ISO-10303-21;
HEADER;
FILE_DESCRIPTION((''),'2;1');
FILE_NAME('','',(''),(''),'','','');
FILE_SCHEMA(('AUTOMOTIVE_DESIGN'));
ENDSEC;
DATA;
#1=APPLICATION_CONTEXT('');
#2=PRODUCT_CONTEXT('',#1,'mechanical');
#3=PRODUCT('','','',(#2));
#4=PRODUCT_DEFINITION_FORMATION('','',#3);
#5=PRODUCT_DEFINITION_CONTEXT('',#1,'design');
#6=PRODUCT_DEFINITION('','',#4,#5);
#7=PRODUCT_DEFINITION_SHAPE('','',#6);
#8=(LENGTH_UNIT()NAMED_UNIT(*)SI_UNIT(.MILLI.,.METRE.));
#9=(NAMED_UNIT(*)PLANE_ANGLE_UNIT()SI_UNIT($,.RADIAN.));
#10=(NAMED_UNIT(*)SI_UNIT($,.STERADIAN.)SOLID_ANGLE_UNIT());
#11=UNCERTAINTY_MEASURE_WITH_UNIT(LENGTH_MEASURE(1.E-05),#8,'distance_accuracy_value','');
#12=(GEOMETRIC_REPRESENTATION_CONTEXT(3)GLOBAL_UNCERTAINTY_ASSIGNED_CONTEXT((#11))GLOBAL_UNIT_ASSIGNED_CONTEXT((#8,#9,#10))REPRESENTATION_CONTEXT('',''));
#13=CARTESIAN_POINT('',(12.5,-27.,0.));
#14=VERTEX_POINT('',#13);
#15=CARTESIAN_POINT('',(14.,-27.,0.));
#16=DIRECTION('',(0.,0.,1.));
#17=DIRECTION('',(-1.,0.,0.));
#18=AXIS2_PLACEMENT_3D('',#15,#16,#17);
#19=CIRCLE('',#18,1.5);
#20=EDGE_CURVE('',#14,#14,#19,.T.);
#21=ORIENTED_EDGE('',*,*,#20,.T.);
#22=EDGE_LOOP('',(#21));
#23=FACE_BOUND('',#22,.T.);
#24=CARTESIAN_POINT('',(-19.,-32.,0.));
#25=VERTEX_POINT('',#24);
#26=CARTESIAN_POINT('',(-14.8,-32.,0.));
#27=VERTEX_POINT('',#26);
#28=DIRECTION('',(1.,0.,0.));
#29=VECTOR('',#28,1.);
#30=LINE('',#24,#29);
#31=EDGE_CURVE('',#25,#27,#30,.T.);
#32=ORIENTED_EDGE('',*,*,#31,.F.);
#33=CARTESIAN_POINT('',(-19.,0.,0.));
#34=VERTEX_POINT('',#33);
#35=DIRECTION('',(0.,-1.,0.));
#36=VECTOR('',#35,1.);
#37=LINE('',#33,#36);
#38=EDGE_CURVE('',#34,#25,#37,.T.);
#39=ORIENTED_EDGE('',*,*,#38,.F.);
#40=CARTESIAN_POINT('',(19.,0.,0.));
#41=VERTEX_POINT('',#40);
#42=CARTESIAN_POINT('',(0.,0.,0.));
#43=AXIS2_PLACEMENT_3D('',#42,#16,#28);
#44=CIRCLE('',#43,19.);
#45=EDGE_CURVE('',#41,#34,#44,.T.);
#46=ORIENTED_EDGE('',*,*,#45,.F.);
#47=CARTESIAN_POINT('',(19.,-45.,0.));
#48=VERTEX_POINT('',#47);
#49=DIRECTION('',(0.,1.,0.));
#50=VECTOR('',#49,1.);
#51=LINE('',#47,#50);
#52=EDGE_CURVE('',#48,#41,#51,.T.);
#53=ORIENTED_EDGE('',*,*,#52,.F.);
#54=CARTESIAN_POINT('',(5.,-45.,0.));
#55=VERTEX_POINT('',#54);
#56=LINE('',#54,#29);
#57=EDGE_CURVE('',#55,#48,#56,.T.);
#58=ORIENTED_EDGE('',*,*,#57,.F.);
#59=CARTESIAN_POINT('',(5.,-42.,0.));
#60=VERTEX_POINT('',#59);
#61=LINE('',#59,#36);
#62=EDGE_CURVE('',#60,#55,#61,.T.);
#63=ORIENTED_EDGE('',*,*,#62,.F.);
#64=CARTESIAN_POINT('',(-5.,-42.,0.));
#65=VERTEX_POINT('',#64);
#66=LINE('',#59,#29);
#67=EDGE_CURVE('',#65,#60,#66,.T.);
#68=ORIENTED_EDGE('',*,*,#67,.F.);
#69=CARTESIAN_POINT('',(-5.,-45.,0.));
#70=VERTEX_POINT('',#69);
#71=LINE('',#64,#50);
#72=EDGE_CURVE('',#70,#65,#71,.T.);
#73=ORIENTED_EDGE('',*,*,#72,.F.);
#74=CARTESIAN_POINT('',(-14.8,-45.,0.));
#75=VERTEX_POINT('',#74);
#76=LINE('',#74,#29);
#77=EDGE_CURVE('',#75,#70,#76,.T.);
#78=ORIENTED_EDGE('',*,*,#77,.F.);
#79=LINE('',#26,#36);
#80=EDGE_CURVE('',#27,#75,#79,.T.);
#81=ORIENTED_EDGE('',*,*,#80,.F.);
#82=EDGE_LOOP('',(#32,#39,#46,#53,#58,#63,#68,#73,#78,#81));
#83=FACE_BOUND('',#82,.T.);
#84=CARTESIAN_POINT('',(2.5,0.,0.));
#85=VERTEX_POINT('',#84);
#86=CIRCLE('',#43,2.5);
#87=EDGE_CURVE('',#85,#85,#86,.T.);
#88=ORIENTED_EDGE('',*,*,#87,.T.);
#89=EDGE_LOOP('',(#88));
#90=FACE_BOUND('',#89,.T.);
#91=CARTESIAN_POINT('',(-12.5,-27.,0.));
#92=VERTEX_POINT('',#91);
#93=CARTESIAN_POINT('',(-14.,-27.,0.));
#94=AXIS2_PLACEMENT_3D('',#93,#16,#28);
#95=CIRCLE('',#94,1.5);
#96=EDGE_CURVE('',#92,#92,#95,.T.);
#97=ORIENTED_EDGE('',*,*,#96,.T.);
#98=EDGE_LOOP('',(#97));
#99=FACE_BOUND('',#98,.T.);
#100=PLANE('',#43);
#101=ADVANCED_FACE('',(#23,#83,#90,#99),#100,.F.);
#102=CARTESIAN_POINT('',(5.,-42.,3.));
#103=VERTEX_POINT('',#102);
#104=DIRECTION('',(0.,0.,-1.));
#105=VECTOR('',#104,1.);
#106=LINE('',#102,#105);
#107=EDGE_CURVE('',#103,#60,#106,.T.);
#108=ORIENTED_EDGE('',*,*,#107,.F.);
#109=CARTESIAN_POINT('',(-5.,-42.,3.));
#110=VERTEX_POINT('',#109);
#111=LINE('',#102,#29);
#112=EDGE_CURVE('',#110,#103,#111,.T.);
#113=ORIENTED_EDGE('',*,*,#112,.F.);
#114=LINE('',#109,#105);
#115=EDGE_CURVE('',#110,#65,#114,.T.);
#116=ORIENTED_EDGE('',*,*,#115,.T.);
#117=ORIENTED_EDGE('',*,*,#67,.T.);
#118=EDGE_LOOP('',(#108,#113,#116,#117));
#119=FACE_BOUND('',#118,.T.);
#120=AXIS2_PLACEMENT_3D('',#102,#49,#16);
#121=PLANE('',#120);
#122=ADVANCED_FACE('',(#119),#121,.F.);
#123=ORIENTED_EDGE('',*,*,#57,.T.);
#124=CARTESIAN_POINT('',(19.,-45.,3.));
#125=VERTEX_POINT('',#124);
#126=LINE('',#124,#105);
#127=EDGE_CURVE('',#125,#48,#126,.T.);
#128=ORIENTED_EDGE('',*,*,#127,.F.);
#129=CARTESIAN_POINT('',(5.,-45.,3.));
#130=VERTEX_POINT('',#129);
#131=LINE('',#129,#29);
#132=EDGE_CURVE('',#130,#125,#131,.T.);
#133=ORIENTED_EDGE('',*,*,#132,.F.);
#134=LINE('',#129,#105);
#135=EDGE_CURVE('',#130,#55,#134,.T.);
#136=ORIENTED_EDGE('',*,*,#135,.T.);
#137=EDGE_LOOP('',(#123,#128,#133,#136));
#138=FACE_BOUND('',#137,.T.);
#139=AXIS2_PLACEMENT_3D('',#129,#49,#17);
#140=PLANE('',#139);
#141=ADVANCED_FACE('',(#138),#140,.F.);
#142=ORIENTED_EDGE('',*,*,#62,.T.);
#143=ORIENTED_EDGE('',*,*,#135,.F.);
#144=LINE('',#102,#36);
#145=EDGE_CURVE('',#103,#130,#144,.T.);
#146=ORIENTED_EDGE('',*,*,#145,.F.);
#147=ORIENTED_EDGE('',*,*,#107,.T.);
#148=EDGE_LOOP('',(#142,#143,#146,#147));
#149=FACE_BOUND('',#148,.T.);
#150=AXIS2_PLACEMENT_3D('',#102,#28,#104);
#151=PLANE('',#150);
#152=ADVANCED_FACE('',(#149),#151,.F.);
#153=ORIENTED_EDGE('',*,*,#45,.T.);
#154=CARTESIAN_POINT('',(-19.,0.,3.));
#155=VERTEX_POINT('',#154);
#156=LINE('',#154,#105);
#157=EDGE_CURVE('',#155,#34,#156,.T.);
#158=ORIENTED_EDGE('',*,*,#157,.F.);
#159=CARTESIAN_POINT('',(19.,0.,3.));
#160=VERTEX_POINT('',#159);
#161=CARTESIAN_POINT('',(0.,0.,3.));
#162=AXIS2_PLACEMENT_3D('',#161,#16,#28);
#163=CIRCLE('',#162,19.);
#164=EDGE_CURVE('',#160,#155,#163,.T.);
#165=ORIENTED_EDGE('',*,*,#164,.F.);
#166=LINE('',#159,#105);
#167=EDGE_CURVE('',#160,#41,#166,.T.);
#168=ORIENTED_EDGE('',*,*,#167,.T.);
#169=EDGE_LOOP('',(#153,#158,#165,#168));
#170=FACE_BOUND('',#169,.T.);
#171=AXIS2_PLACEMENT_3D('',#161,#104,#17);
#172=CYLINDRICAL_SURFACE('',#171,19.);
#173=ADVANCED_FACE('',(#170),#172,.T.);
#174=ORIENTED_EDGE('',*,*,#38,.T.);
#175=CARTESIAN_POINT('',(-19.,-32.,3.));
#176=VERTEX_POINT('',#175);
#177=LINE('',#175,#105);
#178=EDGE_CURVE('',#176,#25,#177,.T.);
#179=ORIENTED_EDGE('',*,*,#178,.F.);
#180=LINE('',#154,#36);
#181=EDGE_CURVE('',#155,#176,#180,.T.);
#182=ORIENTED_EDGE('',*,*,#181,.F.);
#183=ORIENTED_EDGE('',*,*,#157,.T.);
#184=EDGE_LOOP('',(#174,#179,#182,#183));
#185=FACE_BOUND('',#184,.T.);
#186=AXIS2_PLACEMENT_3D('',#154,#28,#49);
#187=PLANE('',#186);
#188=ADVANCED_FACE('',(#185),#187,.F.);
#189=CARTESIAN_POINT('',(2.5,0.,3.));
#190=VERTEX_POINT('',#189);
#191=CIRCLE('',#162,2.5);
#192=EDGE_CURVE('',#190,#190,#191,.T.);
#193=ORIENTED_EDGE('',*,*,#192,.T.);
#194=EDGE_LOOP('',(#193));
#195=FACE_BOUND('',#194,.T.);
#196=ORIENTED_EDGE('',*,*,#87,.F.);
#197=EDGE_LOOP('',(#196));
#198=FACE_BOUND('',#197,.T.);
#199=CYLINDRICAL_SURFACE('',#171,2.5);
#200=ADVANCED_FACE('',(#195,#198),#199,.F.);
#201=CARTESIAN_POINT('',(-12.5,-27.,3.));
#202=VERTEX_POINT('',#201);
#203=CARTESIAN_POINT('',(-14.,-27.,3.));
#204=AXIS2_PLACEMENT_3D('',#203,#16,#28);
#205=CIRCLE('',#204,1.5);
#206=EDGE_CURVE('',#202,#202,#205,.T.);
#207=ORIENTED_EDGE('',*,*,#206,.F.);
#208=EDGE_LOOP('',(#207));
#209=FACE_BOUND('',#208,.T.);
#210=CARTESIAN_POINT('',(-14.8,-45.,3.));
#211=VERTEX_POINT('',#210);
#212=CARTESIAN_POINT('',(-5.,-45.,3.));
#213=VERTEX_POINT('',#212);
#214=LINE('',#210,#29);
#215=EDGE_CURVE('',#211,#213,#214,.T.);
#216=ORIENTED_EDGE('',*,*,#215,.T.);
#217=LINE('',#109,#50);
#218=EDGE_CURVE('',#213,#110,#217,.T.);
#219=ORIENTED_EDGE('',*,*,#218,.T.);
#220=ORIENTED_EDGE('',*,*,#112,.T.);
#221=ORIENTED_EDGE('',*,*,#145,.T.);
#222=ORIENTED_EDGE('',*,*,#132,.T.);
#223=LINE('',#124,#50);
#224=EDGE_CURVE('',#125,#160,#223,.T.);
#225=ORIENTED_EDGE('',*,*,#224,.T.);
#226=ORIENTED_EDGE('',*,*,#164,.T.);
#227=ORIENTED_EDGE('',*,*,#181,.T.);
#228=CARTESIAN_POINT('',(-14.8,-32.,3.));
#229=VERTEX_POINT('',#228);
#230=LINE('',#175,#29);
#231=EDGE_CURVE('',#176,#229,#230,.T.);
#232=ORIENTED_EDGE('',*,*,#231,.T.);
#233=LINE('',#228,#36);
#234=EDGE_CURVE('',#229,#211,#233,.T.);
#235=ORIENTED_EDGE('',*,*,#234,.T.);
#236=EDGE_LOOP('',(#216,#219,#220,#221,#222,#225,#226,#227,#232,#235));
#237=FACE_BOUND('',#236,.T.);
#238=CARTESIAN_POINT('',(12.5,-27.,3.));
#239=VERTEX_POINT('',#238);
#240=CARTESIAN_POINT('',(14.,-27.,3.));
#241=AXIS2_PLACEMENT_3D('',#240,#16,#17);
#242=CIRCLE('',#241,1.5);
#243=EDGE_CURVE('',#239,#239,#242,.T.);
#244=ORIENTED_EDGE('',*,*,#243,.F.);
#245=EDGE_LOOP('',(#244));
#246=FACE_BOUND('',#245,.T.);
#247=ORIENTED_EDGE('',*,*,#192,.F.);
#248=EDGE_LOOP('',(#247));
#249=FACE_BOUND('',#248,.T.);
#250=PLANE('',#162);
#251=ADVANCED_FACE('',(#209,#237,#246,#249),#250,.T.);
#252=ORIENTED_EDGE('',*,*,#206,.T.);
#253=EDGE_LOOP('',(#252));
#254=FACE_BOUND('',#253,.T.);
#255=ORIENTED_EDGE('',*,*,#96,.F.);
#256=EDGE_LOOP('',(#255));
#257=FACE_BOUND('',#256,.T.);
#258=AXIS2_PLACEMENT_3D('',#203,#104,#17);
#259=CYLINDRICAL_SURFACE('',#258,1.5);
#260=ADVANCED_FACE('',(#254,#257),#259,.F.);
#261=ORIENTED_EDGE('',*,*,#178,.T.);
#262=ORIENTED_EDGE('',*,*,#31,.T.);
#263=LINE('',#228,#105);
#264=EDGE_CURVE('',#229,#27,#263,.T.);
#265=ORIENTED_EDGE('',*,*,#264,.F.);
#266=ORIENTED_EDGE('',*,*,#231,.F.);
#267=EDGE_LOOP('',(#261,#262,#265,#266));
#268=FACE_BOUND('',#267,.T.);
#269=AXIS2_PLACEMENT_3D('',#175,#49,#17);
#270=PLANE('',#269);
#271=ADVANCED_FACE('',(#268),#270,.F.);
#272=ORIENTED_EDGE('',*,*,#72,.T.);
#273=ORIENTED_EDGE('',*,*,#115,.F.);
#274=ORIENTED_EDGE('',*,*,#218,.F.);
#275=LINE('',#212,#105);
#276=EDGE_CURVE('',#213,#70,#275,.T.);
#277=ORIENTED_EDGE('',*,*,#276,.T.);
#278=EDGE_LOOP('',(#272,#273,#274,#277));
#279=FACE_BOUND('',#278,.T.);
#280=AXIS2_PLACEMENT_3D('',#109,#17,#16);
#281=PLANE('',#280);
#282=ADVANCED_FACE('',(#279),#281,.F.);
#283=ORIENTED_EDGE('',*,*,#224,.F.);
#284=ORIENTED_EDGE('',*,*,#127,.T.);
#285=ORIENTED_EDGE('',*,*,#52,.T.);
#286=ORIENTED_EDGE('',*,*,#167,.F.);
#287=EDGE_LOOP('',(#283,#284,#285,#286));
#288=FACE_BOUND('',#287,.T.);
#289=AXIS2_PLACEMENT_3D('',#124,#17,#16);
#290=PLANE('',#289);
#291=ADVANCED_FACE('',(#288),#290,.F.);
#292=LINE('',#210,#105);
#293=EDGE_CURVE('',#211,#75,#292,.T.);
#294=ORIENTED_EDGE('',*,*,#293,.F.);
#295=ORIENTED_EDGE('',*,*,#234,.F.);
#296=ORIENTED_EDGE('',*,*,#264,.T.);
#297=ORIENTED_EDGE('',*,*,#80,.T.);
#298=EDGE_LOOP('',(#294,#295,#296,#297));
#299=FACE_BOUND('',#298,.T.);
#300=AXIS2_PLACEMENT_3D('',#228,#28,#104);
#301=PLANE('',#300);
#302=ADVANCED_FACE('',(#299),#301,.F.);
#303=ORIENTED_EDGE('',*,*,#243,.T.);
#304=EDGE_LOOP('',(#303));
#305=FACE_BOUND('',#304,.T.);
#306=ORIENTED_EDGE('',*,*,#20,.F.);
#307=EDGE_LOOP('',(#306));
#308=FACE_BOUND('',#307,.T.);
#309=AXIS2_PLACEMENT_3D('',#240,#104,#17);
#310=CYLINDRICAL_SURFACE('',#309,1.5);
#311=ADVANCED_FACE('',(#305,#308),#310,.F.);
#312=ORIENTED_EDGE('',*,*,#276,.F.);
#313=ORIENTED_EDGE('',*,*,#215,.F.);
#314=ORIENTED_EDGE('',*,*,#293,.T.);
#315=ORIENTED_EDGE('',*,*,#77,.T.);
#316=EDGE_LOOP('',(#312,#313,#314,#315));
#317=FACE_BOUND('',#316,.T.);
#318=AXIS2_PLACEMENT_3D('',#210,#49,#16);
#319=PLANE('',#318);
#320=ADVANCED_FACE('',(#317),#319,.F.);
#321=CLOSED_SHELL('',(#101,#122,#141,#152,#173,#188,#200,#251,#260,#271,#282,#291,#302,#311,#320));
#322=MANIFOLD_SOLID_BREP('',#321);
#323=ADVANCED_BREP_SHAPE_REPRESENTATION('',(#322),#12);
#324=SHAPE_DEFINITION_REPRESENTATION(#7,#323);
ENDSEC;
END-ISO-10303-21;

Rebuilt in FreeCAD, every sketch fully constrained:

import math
import FreeCAD as App
import Part
import Sketcher
Q = App.Units.Quantity

doc = App.newDocument("Part")
body = doc.addObject("PartDesign::Body", "Body")

# Sketch on XY plane
sketch1 = body.newObject("Sketcher::SketchObject", "Sketch")
sketch1.AttachmentSupport = (doc.getObject("XY_Plane"), [""])
sketch1.MapMode = "FlatFace"
sketch1.addGeometry(Part.LineSegment(App.Vector(-19, 0, 0), App.Vector(-19, -32, 0)), False)
sketch1.addGeometry(Part.LineSegment(App.Vector(-19, -32, 0), App.Vector(-14.8, -32, 0)), False)
sketch1.addGeometry(Part.LineSegment(App.Vector(-14.8, -32, 0), App.Vector(-14.8, -45, 0)), False)
sketch1.addGeometry(Part.LineSegment(App.Vector(-14.8, -45, 0), App.Vector(-5, -45, 0)), False)
sketch1.addGeometry(Part.LineSegment(App.Vector(-5, -45, 0), App.Vector(-5, -42, 0)), False)
sketch1.addGeometry(Part.LineSegment(App.Vector(-5, -42, 0), App.Vector(5, -42, 0)), False)
sketch1.addGeometry(Part.LineSegment(App.Vector(5, -42, 0), App.Vector(5, -45, 0)), False)
sketch1.addGeometry(Part.LineSegment(App.Vector(5, -45, 0), App.Vector(19, -45, 0)), False)
sketch1.addGeometry(Part.LineSegment(App.Vector(19, -45, 0), App.Vector(19, 0, 0)), False)
sketch1.addGeometry(Part.ArcOfCircle(Part.Circle(App.Vector(0, 0, 0), App.Vector(0, 0, 1), 19), math.radians(0), math.radians(180)), False)
sketch1.addGeometry(Part.Circle(App.Vector(-14, -27, 0), App.Vector(0, 0, 1), 1.5), False)
sketch1.addGeometry(Part.Circle(App.Vector(14, -27, 0), App.Vector(0, 0, 1), 1.5), False)
sketch1.addGeometry(Part.Circle(App.Vector(0, 0, 0), App.Vector(0, 0, 1), 2.5), False)
sketch1.addConstraint(Sketcher.Constraint("Coincident", 0, 2, 1, 1))
sketch1.addConstraint(Sketcher.Constraint("Coincident", 1, 2, 2, 1))
sketch1.addConstraint(Sketcher.Constraint("Coincident", 2, 2, 3, 1))
sketch1.addConstraint(Sketcher.Constraint("Coincident", 3, 2, 4, 1))
sketch1.addConstraint(Sketcher.Constraint("Coincident", 4, 2, 5, 1))
sketch1.addConstraint(Sketcher.Constraint("Coincident", 5, 2, 6, 1))
sketch1.addConstraint(Sketcher.Constraint("Coincident", 6, 2, 7, 1))
sketch1.addConstraint(Sketcher.Constraint("Coincident", 7, 2, 8, 1))
sketch1.addConstraint(Sketcher.Constraint("Tangent", 8, 2, 9, 1))
sketch1.addConstraint(Sketcher.Constraint("Tangent", 9, 2, 0, 1))
sketch1.addConstraint(Sketcher.Constraint("Vertical", 0))
sketch1.addConstraint(Sketcher.Constraint("Horizontal", 1))
sketch1.addConstraint(Sketcher.Constraint("Vertical", 2))
sketch1.addConstraint(Sketcher.Constraint("Horizontal", 3))
sketch1.addConstraint(Sketcher.Constraint("Vertical", 4))
sketch1.addConstraint(Sketcher.Constraint("Horizontal", 5))
sketch1.addConstraint(Sketcher.Constraint("Vertical", 6))
sketch1.addConstraint(Sketcher.Constraint("Horizontal", 7))
sketch1.addConstraint(Sketcher.Constraint("Vertical", 8))
sketch1.addConstraint(Sketcher.Constraint("Coincident", 9, 3, -1, 1))
sketch1.addConstraint(Sketcher.Constraint("Coincident", 12, 3, -1, 1))
sketch1.addConstraint(Sketcher.Constraint("Equal", 10, 11))
sketch1.addConstraint(Sketcher.Constraint("Symmetric", 10, 3, 11, 3, -2))
sketch1.addConstraint(Sketcher.Constraint("Symmetric", 3, 2, 6, 2, -2))
sketch1.addConstraint(Sketcher.Constraint("Diameter", 10, Q("3 mm")))
sketch1.addConstraint(Sketcher.Constraint("Diameter", 12, Q("5 mm")))
sketch1.addConstraint(Sketcher.Constraint("Radius", 9, Q("19 mm")))
sketch1.addConstraint(Sketcher.Constraint("DistanceX", 5, 1, 5, 2, Q("10 mm")))
sketch1.addConstraint(Sketcher.Constraint("DistanceY", 0, 2, 0, 1, Q("32 mm")))
sketch1.addConstraint(Sketcher.Constraint("DistanceY", 2, 2, 2, 1, Q("13 mm")))
sketch1.addConstraint(Sketcher.Constraint("DistanceY", 4, 1, 4, 2, Q("3 mm")))
sketch1.addConstraint(Sketcher.Constraint("DistanceX", 1, 1, 1, 2, Q("4.2 mm")))
sketch1.addConstraint(Sketcher.Constraint("DistanceX", 10, 3, -1, 1, Q("14 mm")))
sketch1.addConstraint(Sketcher.Constraint("DistanceY", 10, 3, -1, 1, Q("27 mm")))
pad1 = body.newObject("PartDesign::Pad", "Pad")
pad1.Profile = sketch1
pad1.Length = 3

doc.recompute()
